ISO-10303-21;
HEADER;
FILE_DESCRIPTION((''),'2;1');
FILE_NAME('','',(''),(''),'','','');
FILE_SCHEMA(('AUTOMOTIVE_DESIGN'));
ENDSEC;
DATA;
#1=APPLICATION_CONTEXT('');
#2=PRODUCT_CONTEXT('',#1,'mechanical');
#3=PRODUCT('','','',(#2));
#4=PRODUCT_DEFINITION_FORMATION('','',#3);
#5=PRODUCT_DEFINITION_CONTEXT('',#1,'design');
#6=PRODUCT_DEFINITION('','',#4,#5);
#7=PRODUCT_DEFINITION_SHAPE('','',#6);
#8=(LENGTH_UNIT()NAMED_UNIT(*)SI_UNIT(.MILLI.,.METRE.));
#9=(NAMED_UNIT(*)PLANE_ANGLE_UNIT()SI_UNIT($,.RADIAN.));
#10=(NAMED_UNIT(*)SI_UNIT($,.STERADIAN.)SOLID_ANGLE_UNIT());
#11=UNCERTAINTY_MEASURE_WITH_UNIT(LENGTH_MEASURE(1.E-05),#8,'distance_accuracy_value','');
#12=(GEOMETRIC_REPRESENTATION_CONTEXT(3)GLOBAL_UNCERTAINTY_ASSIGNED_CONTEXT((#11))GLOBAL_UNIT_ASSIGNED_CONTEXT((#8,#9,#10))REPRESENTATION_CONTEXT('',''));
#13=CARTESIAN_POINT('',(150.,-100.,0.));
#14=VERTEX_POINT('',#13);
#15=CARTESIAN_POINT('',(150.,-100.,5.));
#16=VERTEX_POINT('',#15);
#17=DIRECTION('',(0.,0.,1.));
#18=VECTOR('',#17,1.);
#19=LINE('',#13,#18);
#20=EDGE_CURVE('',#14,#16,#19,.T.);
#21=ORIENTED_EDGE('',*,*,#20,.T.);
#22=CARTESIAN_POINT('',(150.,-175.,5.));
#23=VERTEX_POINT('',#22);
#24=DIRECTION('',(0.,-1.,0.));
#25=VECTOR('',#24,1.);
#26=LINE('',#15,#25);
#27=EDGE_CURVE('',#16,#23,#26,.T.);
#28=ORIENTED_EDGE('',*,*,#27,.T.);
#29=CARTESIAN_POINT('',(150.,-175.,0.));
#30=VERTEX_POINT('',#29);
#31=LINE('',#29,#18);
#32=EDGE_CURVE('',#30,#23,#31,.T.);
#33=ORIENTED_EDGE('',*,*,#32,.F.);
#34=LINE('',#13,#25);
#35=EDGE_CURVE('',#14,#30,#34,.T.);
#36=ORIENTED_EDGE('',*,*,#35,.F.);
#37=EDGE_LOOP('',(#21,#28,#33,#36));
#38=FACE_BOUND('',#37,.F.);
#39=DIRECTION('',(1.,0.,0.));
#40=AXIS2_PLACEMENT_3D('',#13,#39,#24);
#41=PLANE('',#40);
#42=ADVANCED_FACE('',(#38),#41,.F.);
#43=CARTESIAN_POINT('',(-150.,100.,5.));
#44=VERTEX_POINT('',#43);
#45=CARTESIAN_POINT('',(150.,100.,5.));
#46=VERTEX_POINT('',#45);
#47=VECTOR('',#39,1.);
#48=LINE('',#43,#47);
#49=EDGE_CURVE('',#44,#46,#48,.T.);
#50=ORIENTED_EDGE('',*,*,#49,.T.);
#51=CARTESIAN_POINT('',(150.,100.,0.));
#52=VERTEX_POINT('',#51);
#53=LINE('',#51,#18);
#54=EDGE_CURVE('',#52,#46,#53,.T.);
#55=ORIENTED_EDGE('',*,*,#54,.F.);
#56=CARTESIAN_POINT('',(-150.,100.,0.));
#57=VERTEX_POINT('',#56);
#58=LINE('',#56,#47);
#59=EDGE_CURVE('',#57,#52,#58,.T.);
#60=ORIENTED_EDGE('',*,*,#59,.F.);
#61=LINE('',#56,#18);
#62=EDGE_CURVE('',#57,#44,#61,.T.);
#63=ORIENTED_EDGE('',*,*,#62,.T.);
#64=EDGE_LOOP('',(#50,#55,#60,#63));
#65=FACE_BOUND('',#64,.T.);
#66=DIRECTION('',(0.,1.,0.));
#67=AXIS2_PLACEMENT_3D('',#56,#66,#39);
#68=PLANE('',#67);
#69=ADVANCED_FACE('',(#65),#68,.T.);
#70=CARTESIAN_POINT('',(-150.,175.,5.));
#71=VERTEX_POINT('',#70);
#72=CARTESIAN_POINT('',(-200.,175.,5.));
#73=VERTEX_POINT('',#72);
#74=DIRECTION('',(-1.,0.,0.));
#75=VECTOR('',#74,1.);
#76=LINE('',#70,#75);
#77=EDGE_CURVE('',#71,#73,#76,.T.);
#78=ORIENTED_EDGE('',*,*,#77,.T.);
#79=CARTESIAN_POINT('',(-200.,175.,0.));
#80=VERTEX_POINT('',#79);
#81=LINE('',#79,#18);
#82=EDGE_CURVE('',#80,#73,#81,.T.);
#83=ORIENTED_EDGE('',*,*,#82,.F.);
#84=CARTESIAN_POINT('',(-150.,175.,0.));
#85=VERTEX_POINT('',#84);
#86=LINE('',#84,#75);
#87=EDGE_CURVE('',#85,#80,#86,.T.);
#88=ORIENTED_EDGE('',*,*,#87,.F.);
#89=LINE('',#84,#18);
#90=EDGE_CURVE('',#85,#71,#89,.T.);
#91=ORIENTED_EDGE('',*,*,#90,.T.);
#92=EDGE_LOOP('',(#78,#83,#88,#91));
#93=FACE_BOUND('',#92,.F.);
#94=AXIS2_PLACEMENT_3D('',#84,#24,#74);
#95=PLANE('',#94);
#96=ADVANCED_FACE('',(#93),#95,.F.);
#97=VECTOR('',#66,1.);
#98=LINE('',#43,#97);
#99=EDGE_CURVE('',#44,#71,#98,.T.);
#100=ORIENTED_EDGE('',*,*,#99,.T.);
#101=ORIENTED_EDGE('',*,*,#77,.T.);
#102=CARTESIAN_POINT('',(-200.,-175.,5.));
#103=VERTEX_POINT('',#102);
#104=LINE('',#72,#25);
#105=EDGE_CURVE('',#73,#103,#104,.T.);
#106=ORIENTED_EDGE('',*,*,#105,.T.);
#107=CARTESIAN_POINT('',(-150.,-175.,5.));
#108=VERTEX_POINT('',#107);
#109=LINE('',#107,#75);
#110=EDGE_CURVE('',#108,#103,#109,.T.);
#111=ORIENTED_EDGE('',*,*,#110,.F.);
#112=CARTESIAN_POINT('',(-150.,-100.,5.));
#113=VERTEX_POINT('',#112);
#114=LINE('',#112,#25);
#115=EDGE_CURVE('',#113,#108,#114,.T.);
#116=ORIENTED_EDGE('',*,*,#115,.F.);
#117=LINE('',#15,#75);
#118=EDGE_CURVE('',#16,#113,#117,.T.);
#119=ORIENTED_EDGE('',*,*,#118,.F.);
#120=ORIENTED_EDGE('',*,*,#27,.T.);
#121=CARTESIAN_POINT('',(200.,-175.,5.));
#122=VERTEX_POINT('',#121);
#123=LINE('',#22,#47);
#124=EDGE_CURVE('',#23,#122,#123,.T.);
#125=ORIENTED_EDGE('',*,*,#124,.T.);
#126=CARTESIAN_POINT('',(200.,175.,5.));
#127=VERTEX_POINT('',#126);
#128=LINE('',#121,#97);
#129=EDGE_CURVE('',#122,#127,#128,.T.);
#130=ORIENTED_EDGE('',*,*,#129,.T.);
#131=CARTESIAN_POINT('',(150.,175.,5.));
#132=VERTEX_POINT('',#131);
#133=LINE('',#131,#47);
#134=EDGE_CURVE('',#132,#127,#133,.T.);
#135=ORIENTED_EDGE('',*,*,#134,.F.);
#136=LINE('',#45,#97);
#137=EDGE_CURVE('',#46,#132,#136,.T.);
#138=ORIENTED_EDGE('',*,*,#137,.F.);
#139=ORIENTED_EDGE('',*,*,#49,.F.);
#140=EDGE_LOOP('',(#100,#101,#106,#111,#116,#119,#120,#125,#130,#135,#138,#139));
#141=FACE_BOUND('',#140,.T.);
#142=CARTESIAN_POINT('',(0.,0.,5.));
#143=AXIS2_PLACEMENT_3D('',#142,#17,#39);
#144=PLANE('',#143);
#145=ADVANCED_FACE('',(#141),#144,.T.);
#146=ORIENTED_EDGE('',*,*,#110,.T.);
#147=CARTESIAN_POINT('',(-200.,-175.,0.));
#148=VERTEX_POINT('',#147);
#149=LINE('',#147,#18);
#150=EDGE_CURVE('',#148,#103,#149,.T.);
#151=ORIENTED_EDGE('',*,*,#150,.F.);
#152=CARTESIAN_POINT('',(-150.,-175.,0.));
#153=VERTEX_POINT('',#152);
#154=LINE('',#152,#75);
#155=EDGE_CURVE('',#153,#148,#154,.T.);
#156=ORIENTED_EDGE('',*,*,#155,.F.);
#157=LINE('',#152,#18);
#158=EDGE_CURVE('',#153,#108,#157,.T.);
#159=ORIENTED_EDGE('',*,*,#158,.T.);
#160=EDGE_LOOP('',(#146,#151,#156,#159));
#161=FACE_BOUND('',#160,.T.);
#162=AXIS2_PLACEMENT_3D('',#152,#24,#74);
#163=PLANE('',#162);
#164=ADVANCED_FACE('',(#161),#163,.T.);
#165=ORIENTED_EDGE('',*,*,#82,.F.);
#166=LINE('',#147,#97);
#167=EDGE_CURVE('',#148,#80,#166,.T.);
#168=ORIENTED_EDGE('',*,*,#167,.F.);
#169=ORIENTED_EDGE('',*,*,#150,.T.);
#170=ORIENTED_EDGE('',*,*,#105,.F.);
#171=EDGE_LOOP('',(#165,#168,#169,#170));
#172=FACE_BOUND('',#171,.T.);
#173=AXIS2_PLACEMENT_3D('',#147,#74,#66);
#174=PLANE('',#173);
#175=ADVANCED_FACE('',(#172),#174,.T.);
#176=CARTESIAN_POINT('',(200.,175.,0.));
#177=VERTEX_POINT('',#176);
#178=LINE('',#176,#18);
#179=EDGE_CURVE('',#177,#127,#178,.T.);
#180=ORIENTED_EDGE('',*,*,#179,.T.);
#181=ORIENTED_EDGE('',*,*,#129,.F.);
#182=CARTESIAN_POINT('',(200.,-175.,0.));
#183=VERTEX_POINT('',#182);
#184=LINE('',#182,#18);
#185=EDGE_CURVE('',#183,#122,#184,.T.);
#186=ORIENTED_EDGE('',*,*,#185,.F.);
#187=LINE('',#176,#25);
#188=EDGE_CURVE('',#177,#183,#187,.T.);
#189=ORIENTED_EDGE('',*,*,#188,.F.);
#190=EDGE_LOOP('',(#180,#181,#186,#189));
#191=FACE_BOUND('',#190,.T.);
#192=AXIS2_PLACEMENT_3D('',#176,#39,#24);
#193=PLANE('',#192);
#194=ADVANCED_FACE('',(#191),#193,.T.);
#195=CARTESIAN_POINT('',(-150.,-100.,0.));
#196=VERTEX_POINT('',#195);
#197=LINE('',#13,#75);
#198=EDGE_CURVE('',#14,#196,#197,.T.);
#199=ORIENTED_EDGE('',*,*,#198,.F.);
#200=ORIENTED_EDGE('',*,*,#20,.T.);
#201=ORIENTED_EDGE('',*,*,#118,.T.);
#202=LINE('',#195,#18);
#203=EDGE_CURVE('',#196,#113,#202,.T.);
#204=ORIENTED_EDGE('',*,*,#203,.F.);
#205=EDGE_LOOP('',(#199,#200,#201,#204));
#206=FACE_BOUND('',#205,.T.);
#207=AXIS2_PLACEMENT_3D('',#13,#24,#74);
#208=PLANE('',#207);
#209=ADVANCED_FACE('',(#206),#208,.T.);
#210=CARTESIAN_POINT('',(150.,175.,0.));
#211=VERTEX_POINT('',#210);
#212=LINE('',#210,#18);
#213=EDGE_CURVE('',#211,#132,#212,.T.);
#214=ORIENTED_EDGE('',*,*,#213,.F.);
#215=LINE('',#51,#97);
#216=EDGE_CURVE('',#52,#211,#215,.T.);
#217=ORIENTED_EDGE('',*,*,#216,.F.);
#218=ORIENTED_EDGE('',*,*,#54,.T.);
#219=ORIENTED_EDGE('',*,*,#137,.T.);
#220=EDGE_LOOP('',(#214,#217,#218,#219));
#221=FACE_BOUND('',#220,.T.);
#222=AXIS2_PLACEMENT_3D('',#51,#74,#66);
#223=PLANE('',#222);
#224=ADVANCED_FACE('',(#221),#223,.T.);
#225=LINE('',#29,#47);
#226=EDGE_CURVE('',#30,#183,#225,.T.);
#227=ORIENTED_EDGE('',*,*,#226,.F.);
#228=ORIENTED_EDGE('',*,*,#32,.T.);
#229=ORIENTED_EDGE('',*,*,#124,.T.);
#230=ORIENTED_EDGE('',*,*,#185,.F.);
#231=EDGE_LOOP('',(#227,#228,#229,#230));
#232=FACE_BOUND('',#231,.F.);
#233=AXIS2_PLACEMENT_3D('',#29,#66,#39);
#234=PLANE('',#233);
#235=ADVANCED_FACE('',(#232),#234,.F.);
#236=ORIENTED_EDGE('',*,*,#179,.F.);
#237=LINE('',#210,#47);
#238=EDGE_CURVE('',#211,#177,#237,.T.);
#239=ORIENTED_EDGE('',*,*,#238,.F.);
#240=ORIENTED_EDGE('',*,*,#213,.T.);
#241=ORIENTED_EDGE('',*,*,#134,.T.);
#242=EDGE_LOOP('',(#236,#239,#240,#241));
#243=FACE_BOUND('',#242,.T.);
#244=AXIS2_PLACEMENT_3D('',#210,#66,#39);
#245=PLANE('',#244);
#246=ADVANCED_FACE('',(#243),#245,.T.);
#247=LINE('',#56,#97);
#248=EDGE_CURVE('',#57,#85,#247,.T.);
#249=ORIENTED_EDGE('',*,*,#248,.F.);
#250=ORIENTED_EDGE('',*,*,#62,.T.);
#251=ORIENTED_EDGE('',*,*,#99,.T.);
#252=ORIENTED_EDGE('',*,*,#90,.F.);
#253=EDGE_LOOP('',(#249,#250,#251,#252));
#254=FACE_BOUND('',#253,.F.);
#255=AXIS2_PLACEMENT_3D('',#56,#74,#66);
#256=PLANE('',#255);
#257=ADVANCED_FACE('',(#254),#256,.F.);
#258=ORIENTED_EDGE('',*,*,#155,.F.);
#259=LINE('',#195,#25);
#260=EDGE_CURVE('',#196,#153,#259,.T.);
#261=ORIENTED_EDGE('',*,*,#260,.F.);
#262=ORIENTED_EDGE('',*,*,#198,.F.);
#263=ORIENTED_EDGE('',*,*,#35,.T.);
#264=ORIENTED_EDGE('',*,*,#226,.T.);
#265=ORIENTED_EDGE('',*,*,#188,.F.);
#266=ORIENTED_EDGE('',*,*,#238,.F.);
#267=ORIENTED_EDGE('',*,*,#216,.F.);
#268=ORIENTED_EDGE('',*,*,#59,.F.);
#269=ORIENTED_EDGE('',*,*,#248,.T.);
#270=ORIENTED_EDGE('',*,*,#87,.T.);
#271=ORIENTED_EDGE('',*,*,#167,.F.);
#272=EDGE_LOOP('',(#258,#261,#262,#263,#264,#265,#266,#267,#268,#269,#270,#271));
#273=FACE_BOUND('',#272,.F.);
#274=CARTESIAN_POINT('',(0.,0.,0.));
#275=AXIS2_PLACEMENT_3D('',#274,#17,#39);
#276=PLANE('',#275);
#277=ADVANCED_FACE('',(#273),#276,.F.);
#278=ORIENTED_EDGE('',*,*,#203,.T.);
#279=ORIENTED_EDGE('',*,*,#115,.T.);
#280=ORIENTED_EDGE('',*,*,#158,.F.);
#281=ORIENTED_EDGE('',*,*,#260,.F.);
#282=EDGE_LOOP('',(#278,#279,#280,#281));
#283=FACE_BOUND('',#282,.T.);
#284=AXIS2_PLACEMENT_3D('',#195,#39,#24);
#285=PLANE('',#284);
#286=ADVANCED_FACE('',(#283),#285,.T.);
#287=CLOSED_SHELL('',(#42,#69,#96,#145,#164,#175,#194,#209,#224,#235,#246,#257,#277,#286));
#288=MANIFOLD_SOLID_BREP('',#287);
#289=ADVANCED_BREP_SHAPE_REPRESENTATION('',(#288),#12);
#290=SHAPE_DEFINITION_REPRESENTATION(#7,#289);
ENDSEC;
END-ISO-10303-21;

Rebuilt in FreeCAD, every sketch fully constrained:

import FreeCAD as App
import Part
import Sketcher

doc = App.newDocument("Part")
body = doc.addObject("PartDesign::Body", "Body")

sketch1 = body.newObject("Sketcher::SketchObject", "Sketch")
sketch1.AttachmentSupport = (doc.getObject("XY_Plane"), [""])
sketch1.MapMode = "FlatFace"
sketch1.addGeometry(Part.LineSegment(App.Vector(150, 100, 0), App.Vector(-150, 100, 0)), False)
sketch1.addGeometry(Part.LineSegment(App.Vector(-150, 100, 0), App.Vector(-150, 175, 0)), False)
sketch1.addGeometry(Part.LineSegment(App.Vector(-150, 175, 0), App.Vector(-200, 175, 0)), False)
sketch1.addGeometry(Part.LineSegment(App.Vector(-200, 175, 0), App.Vector(-200, -175, 0)), False)
sketch1.addGeometry(Part.LineSegment(App.Vector(-200, -175, 0), App.Vector(-150, -175, 0)), False)
sketch1.addGeometry(Part.LineSegment(App.Vector(-150, -175, 0), App.Vector(-150, -100, 0)), False)
sketch1.addGeometry(Part.LineSegment(App.Vector(-150, -100, 0), App.Vector(150, -100, 0)), False)
sketch1.addGeometry(Part.LineSegment(App.Vector(150, -100, 0), App.Vector(150, -175, 0)), False)
sketch1.addGeometry(Part.LineSegment(App.Vector(150, -175, 0), App.Vector(200, -175, 0)), False)
sketch1.addGeometry(Part.LineSegment(App.Vector(200, -175, 0), App.Vector(200, 175, 0)), False)
sketch1.addGeometry(Part.LineSegment(App.Vector(200, 175, 0), App.Vector(150, 175, 0)), False)
sketch1.addGeometry(Part.LineSegment(App.Vector(150, 175, 0), App.Vector(150, 100, 0)), False)
sketch1.addConstraint(Sketcher.Constraint("Coincident", 0, 2, 1, 1))
sketch1.addConstraint(Sketcher.Constraint("Coincident", 1, 2, 2, 1))
sketch1.addConstraint(Sketcher.Constraint("Coincident", 2, 2, 3, 1))
sketch1.addConstraint(Sketcher.Constraint("Coincident", 3, 2, 4, 1))
sketch1.addConstraint(Sketcher.Constraint("Coincident", 4, 2, 5, 1))
sketch1.addConstraint(Sketcher.Constraint("Coincident", 5, 2, 6, 1))
sketch1.addConstraint(Sketcher.Constraint("Coincident", 6, 2, 7, 1))
sketch1.addConstraint(Sketcher.Constraint("Coincident", 7, 2, 8, 1))
sketch1.addConstraint(Sketcher.Constraint("Coincident", 8, 2, 9, 1))
sketch1.addConstraint(Sketcher.Constraint("Coincident", 9, 2, 10, 1))
sketch1.addConstraint(Sketcher.Constraint("Coincident", 10, 2, 11, 1))
sketch1.addConstraint(Sketcher.Constraint("Coincident", 11, 2, 0, 1))
sketch1.addConstraint(Sketcher.Constraint("Horizontal", 0))
sketch1.addConstraint(Sketcher.Constraint("Vertical", 1))
sketch1.addConstraint(Sketcher.Constraint("Horizontal", 2))
sketch1.addConstraint(Sketcher.Constraint("Vertical", 3))
sketch1.addConstraint(Sketcher.Constraint("Horizontal", 4))
sketch1.addConstraint(Sketcher.Constraint("Vertical", 5))
sketch1.addConstraint(Sketcher.Constraint("Horizontal", 6))
sketch1.addConstraint(Sketcher.Constraint("Vertical", 7))
sketch1.addConstraint(Sketcher.Constraint("Horizontal", 8))
sketch1.addConstraint(Sketcher.Constraint("Vertical", 9))
sketch1.addConstraint(Sketcher.Constraint("Horizontal", 10))
sketch1.addConstraint(Sketcher.Constraint("Vertical", 11))
sketch1.addConstraint(Sketcher.Constraint("Symmetric", 0, 2, 6, 2, -1, 1))
sketch1.addConstraint(Sketcher.Constraint("Symmetric", 2, 2, 8, 2, -1, 1))
sketch1.addConstraint(Sketcher.Constraint("Symmetric", 4, 2, 10, 2, -1, 1))
sketch1.addConstraint(Sketcher.Constraint("Symmetric", 4, 2, 7, 2, -2))
sketch1.addConstraint(Sketcher.Constraint("DistanceX", 2, 2, 2, 1, 50.0))
sketch1.addConstraint(Sketcher.Constraint("DistanceY", 1, 1, 1, 2, 75.0))
sketch1.addConstraint(Sketcher.Constraint("DistanceX", 2, 2, -1, 1, 200.0))
sketch1.addConstraint(Sketcher.Constraint("DistanceY", 5, 2, 0, 2, 200.0))
pad1 = body.newObject("PartDesign::Pad", "Pad")
pad1.Profile = sketch1
pad1.Length = 5

doc.recompute()
